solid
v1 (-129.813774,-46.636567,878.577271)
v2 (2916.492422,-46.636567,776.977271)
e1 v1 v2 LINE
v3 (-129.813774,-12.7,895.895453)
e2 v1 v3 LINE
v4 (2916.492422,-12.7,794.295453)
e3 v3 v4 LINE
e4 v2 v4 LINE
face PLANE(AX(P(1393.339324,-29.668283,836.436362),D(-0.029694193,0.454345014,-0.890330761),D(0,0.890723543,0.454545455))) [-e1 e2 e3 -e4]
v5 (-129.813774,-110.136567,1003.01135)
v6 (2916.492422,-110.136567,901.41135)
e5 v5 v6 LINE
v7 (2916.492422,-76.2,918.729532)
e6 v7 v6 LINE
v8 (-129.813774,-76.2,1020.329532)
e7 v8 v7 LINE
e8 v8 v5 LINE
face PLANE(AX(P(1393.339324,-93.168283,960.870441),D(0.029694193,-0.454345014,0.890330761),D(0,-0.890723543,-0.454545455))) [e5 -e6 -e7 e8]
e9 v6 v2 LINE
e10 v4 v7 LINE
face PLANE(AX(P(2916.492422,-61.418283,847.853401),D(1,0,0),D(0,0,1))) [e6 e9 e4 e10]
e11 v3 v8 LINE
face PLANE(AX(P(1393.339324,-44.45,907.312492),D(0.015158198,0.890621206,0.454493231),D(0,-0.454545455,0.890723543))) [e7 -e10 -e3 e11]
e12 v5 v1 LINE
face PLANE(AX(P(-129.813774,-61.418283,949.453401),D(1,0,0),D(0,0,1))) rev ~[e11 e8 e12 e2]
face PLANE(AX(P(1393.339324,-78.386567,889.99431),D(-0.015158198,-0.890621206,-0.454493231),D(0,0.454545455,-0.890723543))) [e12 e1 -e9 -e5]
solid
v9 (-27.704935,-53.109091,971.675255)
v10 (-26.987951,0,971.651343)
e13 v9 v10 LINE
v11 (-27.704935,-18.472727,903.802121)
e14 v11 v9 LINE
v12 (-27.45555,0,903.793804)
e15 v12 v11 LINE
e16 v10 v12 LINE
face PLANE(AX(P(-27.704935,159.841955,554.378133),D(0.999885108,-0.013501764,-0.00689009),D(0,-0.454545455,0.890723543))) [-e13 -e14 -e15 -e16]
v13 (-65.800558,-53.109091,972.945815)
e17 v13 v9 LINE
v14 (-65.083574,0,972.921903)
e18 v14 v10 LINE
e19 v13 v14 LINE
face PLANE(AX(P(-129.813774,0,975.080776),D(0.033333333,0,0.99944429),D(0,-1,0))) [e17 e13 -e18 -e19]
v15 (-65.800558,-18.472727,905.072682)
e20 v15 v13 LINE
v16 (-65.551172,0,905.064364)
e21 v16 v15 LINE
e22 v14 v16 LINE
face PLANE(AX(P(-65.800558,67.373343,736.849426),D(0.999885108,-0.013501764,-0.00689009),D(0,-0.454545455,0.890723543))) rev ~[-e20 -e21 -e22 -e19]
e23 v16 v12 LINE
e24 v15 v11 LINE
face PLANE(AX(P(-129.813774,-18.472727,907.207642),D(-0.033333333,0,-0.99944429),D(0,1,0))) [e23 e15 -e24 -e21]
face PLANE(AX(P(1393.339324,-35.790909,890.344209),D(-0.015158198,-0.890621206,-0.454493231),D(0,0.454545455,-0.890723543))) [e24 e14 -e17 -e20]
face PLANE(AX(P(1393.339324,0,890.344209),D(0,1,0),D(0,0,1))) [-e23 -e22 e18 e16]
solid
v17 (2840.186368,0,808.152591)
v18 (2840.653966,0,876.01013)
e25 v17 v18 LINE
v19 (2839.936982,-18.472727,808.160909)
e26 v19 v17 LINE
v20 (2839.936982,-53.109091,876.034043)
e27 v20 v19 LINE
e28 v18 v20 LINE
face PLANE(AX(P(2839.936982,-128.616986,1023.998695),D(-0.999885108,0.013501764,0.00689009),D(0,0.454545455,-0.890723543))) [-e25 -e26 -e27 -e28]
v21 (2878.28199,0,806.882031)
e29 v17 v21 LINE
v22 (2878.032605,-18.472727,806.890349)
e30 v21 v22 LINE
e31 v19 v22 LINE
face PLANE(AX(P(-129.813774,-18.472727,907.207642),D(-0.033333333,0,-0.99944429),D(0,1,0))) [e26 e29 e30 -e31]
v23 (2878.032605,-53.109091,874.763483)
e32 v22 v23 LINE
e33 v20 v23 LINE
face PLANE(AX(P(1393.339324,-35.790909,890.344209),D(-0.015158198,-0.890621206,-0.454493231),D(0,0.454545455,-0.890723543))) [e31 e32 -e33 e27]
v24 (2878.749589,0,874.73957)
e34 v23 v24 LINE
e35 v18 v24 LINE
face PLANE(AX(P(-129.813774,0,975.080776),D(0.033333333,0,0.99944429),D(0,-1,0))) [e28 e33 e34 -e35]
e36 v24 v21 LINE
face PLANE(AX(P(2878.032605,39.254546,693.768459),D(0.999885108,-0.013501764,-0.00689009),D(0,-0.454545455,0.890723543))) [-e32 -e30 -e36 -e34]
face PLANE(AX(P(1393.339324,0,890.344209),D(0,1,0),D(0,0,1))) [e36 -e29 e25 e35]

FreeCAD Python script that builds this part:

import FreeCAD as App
import Part
import Sketcher

V = App.Vector
Q = App.Units.Quantity

doc = App.newDocument("Part")
body = doc.addObject("PartDesign::Body", "Body")

# Sketch on YZ plane
sketch1 = doc.addObject("Sketcher::SketchObject", "Sketch")
body.addObject(sketch1)
sketch1.AttachmentSupport = (doc.YZ_Plane, [""])
sketch1.MapMode = "FlatFace"
sketch1.addGeometry(Part.LineSegment(V(-12.7, 891.565921, 0), V(-76.2, 1016, 0)), False)
sketch1.addGeometry(Part.LineSegment(V(-76.2, 1016, 0), V(-110.136567, 998.681818, 0)), False)
sketch1.addGeometry(Part.LineSegment(V(-110.136567, 998.681818, 0), V(-46.636567, 874.247739, 0)), False)
sketch1.addGeometry(Part.LineSegment(V(-46.636567, 874.247739, 0), V(-12.7, 891.565921, 0)), False)
sketch1.addConstraint(Sketcher.Constraint("Coincident", 0, 2, 1, 1))
sketch1.addConstraint(Sketcher.Constraint("Coincident", 1, 2, 2, 1))
sketch1.addConstraint(Sketcher.Constraint("Coincident", 2, 2, 3, 1))
sketch1.addConstraint(Sketcher.Constraint("Coincident", 3, 2, 0, 1))
sketch1.addConstraint(Sketcher.Constraint("Perpendicular", 0, 1))
sketch1.addConstraint(Sketcher.Constraint("Perpendicular", 1, 2))
sketch1.addConstraint(Sketcher.Constraint("Perpendicular", 2, 3))
sketch1.addConstraint(Sketcher.Constraint("DistanceX", 0, 2, -1, 1, Q("3 in")))
sketch1.addConstraint(Sketcher.Constraint("DistanceY", -1, 1, 0, 2, Q("40 in")))
sketch1.addConstraint(Sketcher.Constraint("Distance", 0, Q("5.5 in")))
sketch1.addConstraint(Sketcher.Constraint("Distance", 1, Q("1.5 in")))
sketch1.addConstraint(Sketcher.Constraint("DistanceX", 3, 2, -1, 1, Q("0.5 in")))

# Sketch on an angled plane
sketch2 = doc.addObject("Sketcher::SketchObject", "Sketch001")
body.addObject(sketch2)
sketch2.Placement = App.Placement(V(33.703609, 0, 1010.54639), App.Rotation(V(0.99944429, 0, -0.033333333), V(0, 1, 0), V(0.033333333, 0, 0.99944429), "ZXY"))
sketch2.addGeometry(Part.LineSegment(V(-163.608302, 0, 0), V(2884.391698, 0, 0)), False)
sketch2.addConstraint(Sketcher.Constraint("Horizontal", 0))
sketch2.addConstraint(Sketcher.Constraint("PointOnObject", 0, 1, -1))
sketch2.addConstraint(Sketcher.Constraint("DistanceX", 0, 1, 0, 2, Q("120 in")))
sketch2.addConstraint(Sketcher.Constraint("DistanceX", 0, 1, -1, 1, 163.608302))
doc.recompute()

additivepipe = doc.addObject("PartDesign::AdditivePipe", "AdditivePipe")
body.addObject(additivepipe)
additivepipe.Profile = sketch1
additivepipe.Spine = (sketch2, ["Edge1"])
body2 = doc.addObject("PartDesign::Body", "Body001")
body2.AllowCompound = True

# Sketch on YZ plane
sketch3 = doc.addObject("Sketcher::SketchObject", "Sketch002")
body2.addObject(sketch3)
sketch3.AttachmentSupport = (doc.getObject("YZ_Plane001"), [""])
sketch3.MapMode = "FlatFace"
sketch3.addGeometry(Part.LineSegment(V(0, 970.751244, 0), V(-53.109091, 970.751244, 0)), False)
sketch3.addGeometry(Part.LineSegment(V(-53.109091, 970.751244, 0), V(-18.472727, 902.87811, 0)), False)
sketch3.addGeometry(Part.LineSegment(V(-18.472727, 902.87811, 0), V(0, 902.87811, 0)), False)
sketch3.addGeometry(Part.LineSegment(V(0, 902.87811, 0), V(0, 970.751244, 0)), False)
sketch3.addConstraint(Sketcher.Constraint("Coincident", 0, 2, 1, 1))
sketch3.addConstraint(Sketcher.Constraint("Coincident", 1, 2, 2, 1))
sketch3.addConstraint(Sketcher.Constraint("Coincident", 2, 2, 3, 1))
sketch3.addConstraint(Sketcher.Constraint("Coincident", 3, 2, 0, 1))
sketch3.addConstraint(Sketcher.Constraint("Horizontal", 0))
sketch3.addConstraint(Sketcher.Constraint("Horizontal", 2))
sketch3.addConstraint(Sketcher.Constraint("Vertical", 3))
sketch3.addConstraint(Sketcher.Constraint("PointOnObject", 2, 2, -2))
sketch3.addConstraint(Sketcher.Constraint("Distance", 1, Q("3 in")))
sketch3.addConstraint(Sketcher.Constraint("DistanceX", 0, 2, 0, 1, 53.109091))
sketch3.addConstraint(Sketcher.Constraint("DistanceX", 2, 1, 2, 2, 18.472727))
sketch3.addConstraint(Sketcher.Constraint("DistanceY", -1, 1, 1, 2, 902.87811))

# Sketch on an angled plane
sketch4 = doc.addObject("Sketcher::SketchObject", "Sketch003")
body2.addObject(sketch4)
sketch4.Placement = App.Placement(V(33.703609, 0, 1010.54639), App.Rotation(V(0.99944429, 0, -0.033333333), V(0, 1, 0), V(0.033333333, 0, 0.99944429), "ZXY"))
sketch4.addGeometry(Part.LineSegment(V(-163.608302, 0, 0), V(2884.391698, 0, 0)), False)
sketch4.addConstraint(Sketcher.Constraint("Horizontal", 0))
sketch4.addConstraint(Sketcher.Constraint("PointOnObject", 0, 1, -1))
sketch4.addConstraint(Sketcher.Constraint("DistanceX", 0, 1, 0, 2, Q("120 in")))
sketch4.addConstraint(Sketcher.Constraint("DistanceX", 0, 1, -1, 1, 163.608302))
doc.recompute()

additivepipe2 = doc.addObject("PartDesign::AdditivePipe", "AdditivePipe001")
body2.addObject(additivepipe2)
additivepipe2.Profile = sketch3
additivepipe2.Spine = (sketch4, ["Edge1"])

# Sketch on an angled plane
sketch5 = doc.addObject("Sketcher::SketchObject", "Sketch004")
body2.addObject(sketch5)
sketch5.Placement = App.Placement(V(5.970811, 350.815503, 179.024787), App.Rotation(V(-0.999885108, 0.013501764, 0.00689009), V(0, -0.454545455, 0.890723543), V(0.015158198, 0.890621206, 0.454493231), "ZXY"))
sketch5.addGeometry(Part.LineSegment(V(-2931.404796, 854.112925, 0), V(-2931.404796, 600.112925, 0)), False)
sketch5.addGeometry(Part.LineSegment(V(-2931.404796, 600.112925, 0), V(-2872.391809, 600.112925, 0)), False)
sketch5.addGeometry(Part.LineSegment(V(-2872.391809, 600.112925, 0), V(-2872.391809, 854.112925, 0)), False)
sketch5.addGeometry(Part.LineSegment(V(-2872.391809, 854.112925, 0), V(-2931.404796, 854.112925, 0)), False)
sketch5.addGeometry(Part.LineSegment(V(-953.196943, 1159.226418, 0), V(-953.196943, 970.562013, 0)), False)
sketch5.addGeometry(Part.LineSegment(V(-953.196943, 970.562013, 0), V(-2834.291809, 970.562013, 0)), False)
sketch5.addGeometry(Part.LineSegment(V(-2834.291809, 970.562013, 0), V(-2834.291809, 698.625411, 0)), False)
sketch5.addGeometry(Part.LineSegment(V(-2834.291809, 698.625411, 0), V(-1936.981125, 698.625411, 0)), False)
sketch5.addGeometry(Part.LineSegment(V(-1936.981125, 698.625411, 0), V(-1936.981125, 705.099958, 0)), False)
sketch5.addGeometry(Part.LineSegment(V(-1936.981125, 705.099958, 0), V(-953.196943, 705.099958, 0)), False)
sketch5.addGeometry(Part.LineSegment(V(-953.196943, 705.099958, 0), V(-953.196943, 421.142221, 0)), False)
sketch5.addGeometry(Part.LineSegment(V(-953.196943, 421.142221, 0), V(33.679616, 421.142221, 0)), False)
sketch5.addGeometry(Part.LineSegment(V(33.679616, 421.142221, 0), V(33.679616, 1159.226418, 0)), False)
sketch5.addGeometry(Part.LineSegment(V(33.679616, 1159.226418, 0), V(-953.196943, 1159.226418, 0)), False)
sketch5.addGeometry(Part.LineSegment(V(71.779616, 1090.117455, 0), V(71.779616, 625.704885, 0)), False)
sketch5.addGeometry(Part.LineSegment(V(71.779616, 625.704885, 0), V(348.215617, 625.704885, 0)), False)
sketch5.addGeometry(Part.LineSegment(V(348.215617, 625.704885, 0), V(348.215617, 1090.117455, 0)), False)
sketch5.addGeometry(Part.LineSegment(V(348.215617, 1090.117455, 0), V(71.779616, 1090.117455, 0)), False)
sketch5.addConstraint(Sketcher.Constraint("Coincident", 0, 2, 1, 1))
sketch5.addConstraint(Sketcher.Constraint("Coincident", 1, 2, 2, 1))
sketch5.addConstraint(Sketcher.Constraint("Coincident", 2, 2, 3, 1))
sketch5.addConstraint(Sketcher.Constraint("Coincident", 3, 2, 0, 1))
sketch5.addConstraint(Sketcher.Constraint("Coincident", 4, 2, 5, 1))
sketch5.addConstraint(Sketcher.Constraint("Coincident", 5, 2, 6, 1))
sketch5.addConstraint(Sketcher.Constraint("Coincident", 6, 2, 7, 1))
sketch5.addConstraint(Sketcher.Constraint("Coincident", 7, 2, 8, 1))
sketch5.addConstraint(Sketcher.Constraint("Coincident", 8, 2, 9, 1))
sketch5.addConstraint(Sketcher.Constraint("Coincident", 9, 2, 10, 1))
sketch5.addConstraint(Sketcher.Constraint("Coincident", 10, 2, 11, 1))
sketch5.addConstraint(Sketcher.Constraint("Coincident", 11, 2, 12, 1))
sketch5.addConstraint(Sketcher.Constraint("Coincident", 12, 2, 13, 1))
sketch5.addConstraint(Sketcher.Constraint("Coincident", 13, 2, 4, 1))
sketch5.addConstraint(Sketcher.Constraint("Coincident", 14, 2, 15, 1))
sketch5.addConstraint(Sketcher.Constraint("Coincident", 15, 2, 16, 1))
sketch5.addConstraint(Sketcher.Constraint("Coincident", 16, 2, 17, 1))
sketch5.addConstraint(Sketcher.Constraint("Coincident", 17, 2, 14, 1))
sketch5.addConstraint(Sketcher.Constraint("Vertical", 0))
sketch5.addConstraint(Sketcher.Constraint("Horizontal", 1))
sketch5.addConstraint(Sketcher.Constraint("Vertical", 2))
sketch5.addConstraint(Sketcher.Constraint("Horizontal", 3))
sketch5.addConstraint(Sketcher.Constraint("Vertical", 4))
sketch5.addConstraint(Sketcher.Constraint("Horizontal", 5))
sketch5.addConstraint(Sketcher.Constraint("Vertical", 6))
sketch5.addConstraint(Sketcher.Constraint("Horizontal", 7))
sketch5.addConstraint(Sketcher.Constraint("Vertical", 8))
sketch5.addConstraint(Sketcher.Constraint("Horizontal", 9))
sketch5.addConstraint(Sketcher.Constraint("Vertical", 10))
sketch5.addConstraint(Sketcher.Constraint("Horizontal", 11))
sketch5.addConstraint(Sketcher.Constraint("Vertical", 12))
sketch5.addConstraint(Sketcher.Constraint("Horizontal", 13))
sketch5.addConstraint(Sketcher.Constraint("Vertical", 14))
sketch5.addConstraint(Sketcher.Constraint("Horizontal", 15))
sketch5.addConstraint(Sketcher.Constraint("Vertical", 16))
sketch5.addConstraint(Sketcher.Constraint("Horizontal", 17))
sketch5.addConstraint(Sketcher.Constraint("Vertical", 4, 2, 9, 2))
sketch5.addConstraint(Sketcher.Constraint("DistanceY", 0, 2, 0, 1, Q("10 in")))
sketch5.addConstraint(Sketcher.Constraint("DistanceX", 2, 2, 5, 2, Q("1.5 in")))
sketch5.addConstraint(Sketcher.Constraint("DistanceX", 11, 2, 14, 2, Q("1.5 in")))
sketch5.addConstraint(Sketcher.Constraint("DistanceX", 15, 1, 15, 2, 276.436001))
sketch5.addConstraint(Sketcher.Constraint("DistanceY", 6, 2, 6, 1, 271.936602))
sketch5.addConstraint(Sketcher.Constraint("DistanceX", 11, 1, 11, 2, 986.876559))
sketch5.addConstraint(Sketcher.Constraint("DistanceY", 14, 2, 14, 1, 464.41257))
sketch5.addConstraint(Sketcher.Constraint("DistanceX", 1, 1, 1, 2, 59.012987))
sketch5.addConstraint(Sketcher.Constraint("DistanceX", 5, 2, 5, 1, 1881.094866))
sketch5.addConstraint(Sketcher.Constraint("DistanceX", 7, 1, 7, 2, 897.310684))
sketch5.addConstraint(Sketcher.Constraint("DistanceY", 4, 2, 4, 1, 188.664406))
sketch5.addConstraint(Sketcher.Constraint("DistanceY", 8, 1, 8, 2, 6.474548))
sketch5.addConstraint(Sketcher.Constraint("DistanceY", 10, 2, 10, 1, 283.957738))
sketch5.addConstraint(Sketcher.Constraint("DistanceX", 1, 2, -1, 1, 2872.391809))
sketch5.addConstraint(Sketcher.Constraint("DistanceY", -1, 1, 6, 2, 698.625411))
sketch5.addConstraint(Sketcher.Constraint("DistanceY", 1, 2, 4, 2, 370.449088))
sketch5.addConstraint(Sketcher.Constraint("DistanceY", -1, 1, 14, 2, 625.704885))
pocket1 = doc.addObject("PartDesign::Pocket", "Pocket")
body2.addObject(pocket1)
pocket1.Profile = sketch5
pocket1.Length = Q("5 in")
pocket1.Reversed = True

doc.recompute()
